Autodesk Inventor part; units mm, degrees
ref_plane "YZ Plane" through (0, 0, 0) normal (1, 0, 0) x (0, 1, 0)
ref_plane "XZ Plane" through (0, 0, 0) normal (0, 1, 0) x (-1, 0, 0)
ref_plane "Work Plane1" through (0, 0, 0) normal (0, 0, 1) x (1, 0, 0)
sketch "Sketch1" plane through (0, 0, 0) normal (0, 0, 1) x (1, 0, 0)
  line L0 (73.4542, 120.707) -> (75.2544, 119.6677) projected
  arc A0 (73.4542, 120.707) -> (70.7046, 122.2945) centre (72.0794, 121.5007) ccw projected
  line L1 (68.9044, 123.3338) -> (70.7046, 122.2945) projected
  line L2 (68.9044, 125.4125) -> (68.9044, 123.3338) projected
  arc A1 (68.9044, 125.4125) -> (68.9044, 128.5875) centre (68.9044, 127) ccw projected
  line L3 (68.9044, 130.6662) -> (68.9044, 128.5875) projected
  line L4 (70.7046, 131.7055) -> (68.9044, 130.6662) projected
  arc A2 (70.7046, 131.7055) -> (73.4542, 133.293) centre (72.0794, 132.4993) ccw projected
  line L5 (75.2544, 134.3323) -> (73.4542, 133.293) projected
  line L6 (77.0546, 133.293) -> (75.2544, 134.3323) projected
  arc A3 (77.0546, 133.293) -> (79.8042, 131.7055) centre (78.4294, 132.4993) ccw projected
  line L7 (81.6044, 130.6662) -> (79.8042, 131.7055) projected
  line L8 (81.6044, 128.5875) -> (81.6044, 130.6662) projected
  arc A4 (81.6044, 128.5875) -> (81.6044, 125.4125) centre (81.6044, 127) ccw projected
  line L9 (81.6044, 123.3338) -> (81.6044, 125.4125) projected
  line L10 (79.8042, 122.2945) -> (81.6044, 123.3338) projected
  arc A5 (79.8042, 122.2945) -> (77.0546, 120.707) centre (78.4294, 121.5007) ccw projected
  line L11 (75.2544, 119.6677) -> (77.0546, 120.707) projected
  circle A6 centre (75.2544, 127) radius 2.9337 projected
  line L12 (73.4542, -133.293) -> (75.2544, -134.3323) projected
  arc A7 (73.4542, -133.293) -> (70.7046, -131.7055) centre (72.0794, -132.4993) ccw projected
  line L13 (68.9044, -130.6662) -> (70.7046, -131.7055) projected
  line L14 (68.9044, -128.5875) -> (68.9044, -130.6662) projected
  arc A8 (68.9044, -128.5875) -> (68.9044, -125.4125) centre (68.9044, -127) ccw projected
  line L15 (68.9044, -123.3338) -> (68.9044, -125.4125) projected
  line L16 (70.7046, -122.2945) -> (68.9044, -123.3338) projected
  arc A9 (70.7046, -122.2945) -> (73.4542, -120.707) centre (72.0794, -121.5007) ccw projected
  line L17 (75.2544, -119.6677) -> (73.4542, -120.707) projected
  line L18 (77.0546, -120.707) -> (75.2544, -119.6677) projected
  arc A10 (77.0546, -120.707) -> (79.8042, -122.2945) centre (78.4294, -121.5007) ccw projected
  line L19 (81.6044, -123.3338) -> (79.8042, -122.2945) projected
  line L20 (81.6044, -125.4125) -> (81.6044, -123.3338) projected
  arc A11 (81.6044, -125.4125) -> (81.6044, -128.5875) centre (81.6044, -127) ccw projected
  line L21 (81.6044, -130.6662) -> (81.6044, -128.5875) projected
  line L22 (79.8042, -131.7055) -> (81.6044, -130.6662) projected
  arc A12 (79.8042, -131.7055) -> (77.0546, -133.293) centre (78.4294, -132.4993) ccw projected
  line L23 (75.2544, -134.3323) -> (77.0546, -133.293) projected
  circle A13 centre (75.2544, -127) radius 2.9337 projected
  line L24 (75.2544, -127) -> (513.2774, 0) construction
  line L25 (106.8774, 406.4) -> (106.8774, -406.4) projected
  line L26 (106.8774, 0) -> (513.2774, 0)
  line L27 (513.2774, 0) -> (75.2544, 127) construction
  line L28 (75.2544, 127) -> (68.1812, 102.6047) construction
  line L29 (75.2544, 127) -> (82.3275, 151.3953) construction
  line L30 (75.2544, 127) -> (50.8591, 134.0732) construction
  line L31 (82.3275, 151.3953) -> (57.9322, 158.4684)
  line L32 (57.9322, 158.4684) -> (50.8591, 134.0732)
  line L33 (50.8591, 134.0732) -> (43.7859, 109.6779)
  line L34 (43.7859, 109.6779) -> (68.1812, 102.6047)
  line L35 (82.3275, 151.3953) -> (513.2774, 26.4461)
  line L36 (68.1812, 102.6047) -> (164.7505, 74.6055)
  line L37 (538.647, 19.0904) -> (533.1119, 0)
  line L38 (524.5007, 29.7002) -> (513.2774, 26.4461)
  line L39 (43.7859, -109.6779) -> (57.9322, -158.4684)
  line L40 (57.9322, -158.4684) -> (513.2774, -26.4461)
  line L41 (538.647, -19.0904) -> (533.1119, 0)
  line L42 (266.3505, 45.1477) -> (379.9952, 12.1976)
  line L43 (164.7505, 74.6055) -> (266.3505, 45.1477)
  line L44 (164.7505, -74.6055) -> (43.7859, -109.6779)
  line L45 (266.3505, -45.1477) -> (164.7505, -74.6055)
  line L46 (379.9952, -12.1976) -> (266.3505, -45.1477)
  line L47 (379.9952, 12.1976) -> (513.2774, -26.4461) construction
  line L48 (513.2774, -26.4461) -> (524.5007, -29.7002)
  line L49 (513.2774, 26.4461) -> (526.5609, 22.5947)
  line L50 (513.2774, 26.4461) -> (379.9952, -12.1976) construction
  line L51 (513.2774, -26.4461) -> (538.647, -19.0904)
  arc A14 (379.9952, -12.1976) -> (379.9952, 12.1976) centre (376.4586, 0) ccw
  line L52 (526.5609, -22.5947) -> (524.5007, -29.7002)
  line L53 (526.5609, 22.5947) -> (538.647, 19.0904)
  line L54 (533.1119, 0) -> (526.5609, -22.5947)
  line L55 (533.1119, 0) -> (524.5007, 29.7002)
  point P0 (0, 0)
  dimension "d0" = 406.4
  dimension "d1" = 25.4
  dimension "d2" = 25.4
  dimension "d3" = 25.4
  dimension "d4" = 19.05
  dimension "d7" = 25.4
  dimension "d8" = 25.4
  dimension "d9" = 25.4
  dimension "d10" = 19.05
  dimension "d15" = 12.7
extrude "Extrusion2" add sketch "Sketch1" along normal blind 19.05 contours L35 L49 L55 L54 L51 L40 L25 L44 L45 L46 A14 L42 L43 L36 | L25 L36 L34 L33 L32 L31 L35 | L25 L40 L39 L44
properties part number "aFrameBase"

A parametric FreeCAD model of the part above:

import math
import FreeCAD as App
import Part
import Sketcher
Q = App.Units.Quantity

doc = App.newDocument("Part")
body = doc.addObject("PartDesign::Body", "Body")

# Sketch on XY plane
sketch1 = body.newObject("Sketcher::SketchObject", "Sketch")
sketch1.AttachmentSupport = (doc.getObject("XY_Plane"), [""])
sketch1.MapMode = "FlatFace"
sketch1.addGeometry([
    Part.LineSegment(App.Vector(513.2774, 26.4461, 0), App.Vector(82.3275, 151.3953, 0)),  # 0
    Part.LineSegment(App.Vector(82.3275, 151.3953, 0), App.Vector(57.9322, 158.4684, 0)),  # 1
    Part.LineSegment(App.Vector(57.9322, 158.4684, 0), App.Vector(50.8591, 134.0732, 0)),  # 2
    Part.LineSegment(App.Vector(50.8591, 134.0732, 0), App.Vector(43.7859, 109.6779, 0)),  # 3
    Part.LineSegment(App.Vector(43.7859, 109.6779, 0), App.Vector(68.1812, 102.6047, 0)),  # 4
    Part.LineSegment(App.Vector(68.1812, 102.6047, 0), App.Vector(164.7505, 74.6055, 0)),  # 5
    Part.LineSegment(App.Vector(164.7505, 74.6055, 0), App.Vector(266.3505, 45.1477, 0)),  # 6
    Part.LineSegment(App.Vector(266.3505, 45.1477, 0), App.Vector(379.9952, 12.1976, 0)),  # 7
    Part.ArcOfCircle(Part.Circle(App.Vector(376.4586, 0, 0), App.Vector(0, 0, 1), 12.69996), math.radians(-73.830891), math.radians(73.830891)),  # 8
    Part.LineSegment(App.Vector(379.9952, -12.1976, 0), App.Vector(266.3505, -45.1477, 0)),  # 9
    Part.LineSegment(App.Vector(266.3505, -45.1477, 0), App.Vector(164.7505, -74.6055, 0)),  # 10
    Part.LineSegment(App.Vector(164.7505, -74.6055, 0), App.Vector(43.7859, -109.6779, 0)),  # 11
    Part.LineSegment(App.Vector(43.7859, -109.6779, 0), App.Vector(57.9322, -158.4684, 0)),  # 12
    Part.LineSegment(App.Vector(57.9322, -158.4684, 0), App.Vector(513.2774, -26.4461, 0)),  # 13
    Part.LineSegment(App.Vector(513.2774, -26.4461, 0), App.Vector(526.56089, -22.594665, 0)),  # 14
    Part.LineSegment(App.Vector(526.5609, -22.5947, 0), App.Vector(533.1119, 0, 0)),  # 15
    Part.LineSegment(App.Vector(533.1119, 0, 0), App.Vector(526.560854, 22.594687, 0)),  # 16
    Part.LineSegment(App.Vector(526.5609, 22.5947, 0), App.Vector(513.2774, 26.4461, 0)),  # 17
    Part.ArcOfCircle(Part.Circle(App.Vector(72.0794, -132.4993, 0), App.Vector(0, 0, 1), 1.587462), math.radians(-29.998714), math.radians(149.998161)),  # 18
    Part.LineSegment(App.Vector(70.7046, -131.7055, 0), App.Vector(68.9044, -130.6662, 0)),  # 19
    Part.LineSegment(App.Vector(68.9044, -130.6662, 0), App.Vector(68.9044, -128.5875, 0)),  # 20
    Part.ArcOfCircle(Part.Circle(App.Vector(68.9044, -127, 0), App.Vector(0, 0, 1), 1.5875), math.radians(-90), math.radians(90)),  # 21
    Part.LineSegment(App.Vector(68.9044, -125.4125, 0), App.Vector(68.9044, -123.3338, 0)),  # 22
    Part.LineSegment(App.Vector(68.9044, -123.3338, 0), App.Vector(70.7046, -122.2945, 0)),  # 23
    Part.ArcOfCircle(Part.Circle(App.Vector(72.0794, -121.5007, 0), App.Vector(0, 0, 1), 1.587512), math.radians(-149.998161), math.radians(29.998714)),  # 24
    Part.LineSegment(App.Vector(73.4542, -120.707, 0), App.Vector(75.2544, -119.6677, 0)),  # 25
    Part.LineSegment(App.Vector(75.2544, -119.6677, 0), App.Vector(77.0546, -120.707, 0)),  # 26
    Part.ArcOfCircle(Part.Circle(App.Vector(78.4294, -121.5007, 0), App.Vector(0, 0, 1), 1.587462), math.radians(150.001286), math.radians(329.998161)),  # 27
    Part.LineSegment(App.Vector(79.8042, -122.2945, 0), App.Vector(81.6044, -123.3338, 0)),  # 28
    Part.LineSegment(App.Vector(81.6044, -123.3338, 0), App.Vector(81.6044, -125.4125, 0)),  # 29
    Part.ArcOfCircle(Part.Circle(App.Vector(81.6044, -127, 0), App.Vector(0, 0, 1), 1.5875), math.radians(90), math.radians(270)),  # 30
    Part.LineSegment(App.Vector(81.6044, -128.5875, 0), App.Vector(81.6044, -130.6662, 0)),  # 31
    Part.LineSegment(App.Vector(81.6044, -130.6662, 0), App.Vector(79.8042, -131.7055, 0)),  # 32
    Part.ArcOfCircle(Part.Circle(App.Vector(78.4294, -132.4993, 0), App.Vector(0, 0, 1), 1.587512), math.radians(30.001839), math.radians(209.998714)),  # 33
    Part.LineSegment(App.Vector(77.0546, -133.293, 0), App.Vector(75.2544, -134.3323, 0)),  # 34
    Part.LineSegment(App.Vector(75.2544, -134.3323, 0), App.Vector(73.4542, -133.293, 0)),  # 35
    Part.ArcOfCircle(Part.Circle(App.Vector(72.0794, 121.5007, 0), App.Vector(0, 0, 1), 1.587462), math.radians(-29.998714), math.radians(149.998161)),  # 36
    Part.LineSegment(App.Vector(70.7046, 122.2945, 0), App.Vector(68.9044, 123.3338, 0)),  # 37
    Part.LineSegment(App.Vector(68.9044, 123.3338, 0), App.Vector(68.9044, 125.4125, 0)),  # 38
    Part.ArcOfCircle(Part.Circle(App.Vector(68.9044, 127, 0), App.Vector(0, 0, 1), 1.5875), math.radians(-90), math.radians(90)),  # 39
    Part.LineSegment(App.Vector(68.9044, 128.5875, 0), App.Vector(68.9044, 130.6662, 0)),  # 40
    Part.LineSegment(App.Vector(68.9044, 130.6662, 0), App.Vector(70.7046, 131.7055, 0)),  # 41
    Part.ArcOfCircle(Part.Circle(App.Vector(72.0794, 132.4993, 0), App.Vector(0, 0, 1), 1.587512), math.radians(-149.998161), math.radians(29.998714)),  # 42
    Part.LineSegment(App.Vector(73.4542, 133.293, 0), App.Vector(75.2544, 134.3323, 0)),  # 43
    Part.LineSegment(App.Vector(75.2544, 134.3323, 0), App.Vector(77.0546, 133.293, 0)),  # 44
    Part.ArcOfCircle(Part.Circle(App.Vector(78.4294, 132.4993, 0), App.Vector(0, 0, 1), 1.587462), math.radians(150.001286), math.radians(329.998161)),  # 45
    Part.LineSegment(App.Vector(79.8042, 131.7055, 0), App.Vector(81.6044, 130.6662, 0)),  # 46
    Part.LineSegment(App.Vector(81.6044, 130.6662, 0), App.Vector(81.6044, 128.5875, 0)),  # 47
    Part.ArcOfCircle(Part.Circle(App.Vector(81.6044, 127, 0), App.Vector(0, 0, 1), 1.5875), math.radians(90), math.radians(270)),  # 48
    Part.LineSegment(App.Vector(81.6044, 125.4125, 0), App.Vector(81.6044, 123.3338, 0)),  # 49
    Part.LineSegment(App.Vector(81.6044, 123.3338, 0), App.Vector(79.8042, 122.2945, 0)),  # 50
    Part.ArcOfCircle(Part.Circle(App.Vector(78.4294, 121.5007, 0), App.Vector(0, 0, 1), 1.587512), math.radians(30.001839), math.radians(209.998714)),  # 51
    Part.LineSegment(App.Vector(77.0546, 120.707, 0), App.Vector(75.2544, 119.6677, 0)),  # 52
    Part.LineSegment(App.Vector(75.2544, 119.6677, 0), App.Vector(73.4542, 120.707, 0)),  # 53
], False)
sketch1.addConstraint([
    Sketcher.Constraint("Coincident", 0, 2, 1, 1),
    Sketcher.Constraint("Coincident", 1, 2, 2, 1),
    Sketcher.Constraint("Coincident", 2, 2, 3, 1),
    Sketcher.Constraint("Coincident", 3, 2, 4, 1),
    Sketcher.Constraint("Coincident", 4, 2, 5, 1),
    Sketcher.Constraint("Coincident", 5, 2, 6, 1),
    Sketcher.Constraint("Coincident", 6, 2, 7, 1),
    Sketcher.Constraint("Tangent", 7, 2, 8, 2),
    Sketcher.Constraint("Tangent", 8, 1, 9, 1),
    Sketcher.Constraint("Coincident", 9, 2, 10, 1),
    Sketcher.Constraint("Coincident", 10, 2, 11, 1),
    Sketcher.Constraint("Coincident", 11, 2, 12, 1),
    Sketcher.Constraint("Coincident", 12, 2, 13, 1),
    Sketcher.Constraint("Coincident", 13, 2, 14, 1),
    Sketcher.Constraint("Coincident", 14, 2, 15, 1),
    Sketcher.Constraint("Coincident", 15, 2, 16, 1),
    Sketcher.Constraint("Coincident", 16, 2, 17, 1),
    Sketcher.Constraint("Coincident", 17, 2, 0, 1),
    Sketcher.Constraint("Coincident", 18, 2, 19, 1),
    Sketcher.Constraint("Coincident", 19, 2, 20, 1),
    Sketcher.Constraint("Coincident", 20, 2, 21, 1),
    Sketcher.Constraint("Coincident", 21, 2, 22, 1),
    Sketcher.Constraint("Coincident", 22, 2, 23, 1),
    Sketcher.Constraint("Coincident", 23, 2, 24, 1),
    Sketcher.Constraint("Coincident", 24, 2, 25, 1),
    Sketcher.Constraint("Coincident", 25, 2, 26, 1),
    Sketcher.Constraint("Coincident", 26, 2, 27, 1),
    Sketcher.Constraint("Coincident", 27, 2, 28, 1),
    Sketcher.Constraint("Coincident", 28, 2, 29, 1),
    Sketcher.Constraint("Coincident", 29, 2, 30, 1),
    Sketcher.Constraint("Coincident", 30, 2, 31, 1),
    Sketcher.Constraint("Coincident", 31, 2, 32, 1),
    Sketcher.Constraint("Coincident", 32, 2, 33, 1),
    Sketcher.Constraint("Coincident", 33, 2, 34, 1),
    Sketcher.Constraint("Coincident", 34, 2, 35, 1),
    Sketcher.Constraint("Coincident", 35, 2, 18, 1),
    Sketcher.Constraint("Coincident", 36, 2, 37, 1),
    Sketcher.Constraint("Coincident", 37, 2, 38, 1),
    Sketcher.Constraint("Coincident", 38, 2, 39, 1),
    Sketcher.Constraint("Coincident", 39, 2, 40, 1),
    Sketcher.Constraint("Coincident", 40, 2, 41, 1),
    Sketcher.Constraint("Coincident", 41, 2, 42, 1),
    Sketcher.Constraint("Coincident", 42, 2, 43, 1),
    Sketcher.Constraint("Coincident", 43, 2, 44, 1),
    Sketcher.Constraint("Coincident", 44, 2, 45, 1),
    Sketcher.Constraint("Coincident", 45, 2, 46, 1),
    Sketcher.Constraint("Coincident", 46, 2, 47, 1),
    Sketcher.Constraint("Coincident", 47, 2, 48, 1),
    Sketcher.Constraint("Coincident", 48, 2, 49, 1),
    Sketcher.Constraint("Coincident", 49, 2, 50, 1),
    Sketcher.Constraint("Coincident", 50, 2, 51, 1),
    Sketcher.Constraint("Coincident", 51, 2, 52, 1),
    Sketcher.Constraint("Coincident", 52, 2, 53, 1),
    Sketcher.Constraint("Coincident", 53, 2, 36, 1),
    Sketcher.Constraint("Vertical", 20),
    Sketcher.Constraint("Vertical", 22),
    Sketcher.Constraint("Vertical", 29),
    Sketcher.Constraint("Vertical", 31),
    Sketcher.Constraint("Vertical", 38),
    Sketcher.Constraint("Vertical", 40),
    Sketcher.Constraint("Vertical", 47),
    Sketcher.Constraint("Vertical", 49),
    Sketcher.Constraint("Equal", 18, 21),
    Sketcher.Constraint("Equal", 21, 24),
    Sketcher.Constraint("Equal", 24, 27),
    Sketcher.Constraint("Equal", 27, 30),
    Sketcher.Constraint("Equal", 30, 33),
    Sketcher.Constraint("Equal", 33, 36),
    Sketcher.Constraint("Equal", 36, 39),
    Sketcher.Constraint("Equal", 39, 42),
    Sketcher.Constraint("Equal", 42, 45),
    Sketcher.Constraint("Equal", 45, 48),
    Sketcher.Constraint("Equal", 48, 51),
    Sketcher.Constraint("Symmetric", 24, 3, 36, 3, -1),
    Sketcher.Constraint("Symmetric", 21, 3, 39, 3, -1),
    Sketcher.Constraint("Symmetric", 18, 3, 42, 3, -1),
    Sketcher.Constraint("Symmetric", 33, 3, 45, 3, -1),
    Sketcher.Constraint("Symmetric", 30, 3, 48, 3, -1),
    Sketcher.Constraint("Symmetric", 27, 3, 51, 3, -1),
    Sketcher.Constraint("Symmetric", 7, 2, 8, 1, -1),
    Sketcher.Constraint("Symmetric", 5, 2, 10, 2, -1),
    Sketcher.Constraint("Symmetric", 3, 2, 11, 2, -1),
    Sketcher.Constraint("Symmetric", 1, 2, 12, 2, -1),
    Sketcher.Constraint("Symmetric", 14, 2, 16, 2, -1),
    Sketcher.Constraint("Symmetric", 13, 2, 17, 2, -1),
    Sketcher.Constraint("Symmetric", 22, 2, 37, 2, -1),
    Sketcher.Constraint("Symmetric", 19, 2, 40, 2, -1),
    Sketcher.Constraint("Symmetric", 34, 2, 43, 2, -1),
    Sketcher.Constraint("Symmetric", 31, 2, 46, 2, -1),
    Sketcher.Constraint("Symmetric", 28, 2, 49, 2, -1),
    Sketcher.Constraint("Symmetric", 25, 2, 52, 2, -1),
    Sketcher.Constraint("PointOnObject", 15, 2, -1),
    Sketcher.Constraint("Parallel", 0, 1),
    Sketcher.Constraint("Perpendicular", 1, 2),
    Sketcher.Constraint("Parallel", 2, 3),
    Sketcher.Constraint("Perpendicular", 3, 4),
    Sketcher.Constraint("Parallel", 4, 5),
    Sketcher.Constraint("Parallel", 5, 6),
    Sketcher.Constraint("Parallel", 6, 7),
    Sketcher.Constraint("Parallel", 13, 14),
    Sketcher.Constraint("Perpendicular", 7, 15),
    Sketcher.Constraint("Parallel", 23, 25),
    Sketcher.Constraint("Parallel", 19, 26),
    Sketcher.Constraint("Parallel", 26, 28),
    Sketcher.Constraint("Parallel", 25, 32),
    Sketcher.Constraint("Parallel", 32, 34),
    Sketcher.Constraint("Parallel", 28, 35),
    Sketcher.Constraint("Parallel", 35, 37),
    Sketcher.Constraint("Parallel", 34, 41),
    Sketcher.Constraint("Parallel", 41, 43),
    Sketcher.Constraint("Parallel", 37, 44),
    Sketcher.Constraint("Parallel", 44, 46),
    Sketcher.Constraint("Parallel", 43, 50),
    Sketcher.Constraint("Parallel", 50, 52),
    Sketcher.Constraint("Parallel", 46, 53),
    Sketcher.Constraint("Horizontal", 24, 3, 27, 3),
    Sketcher.Constraint("Horizontal", 21, 3, 30, 3),
    Sketcher.Constraint("Horizontal", 18, 3, 33, 3),
    Sketcher.Constraint("Horizontal", 24, 2, 26, 2),
    Sketcher.Constraint("Horizontal", 23, 2, 27, 2),
    Sketcher.Constraint("Horizontal", 22, 2, 28, 2),
    Sketcher.Constraint("Horizontal", 19, 2, 31, 2),
    Sketcher.Constraint("Horizontal", 18, 2, 32, 2),
    Sketcher.Constraint("Horizontal", 33, 2, 35, 2),
    Sketcher.Constraint("Horizontal", 42, 2, 44, 2),
    Sketcher.Constraint("Vertical", 18, 3, 24, 3),
    Sketcher.Constraint("Vertical", 27, 3, 33, 3),
    Sketcher.Constraint("Vertical", 6, 2, 9, 2),
    Sketcher.Constraint("Vertical", 39, 3, 19, 2),
    Sketcher.Constraint("Vertical", 20, 2, 21, 2),
    Sketcher.Constraint("Vertical", 18, 2, 23, 2),
    Sketcher.Constraint("Vertical", 48, 3, 28, 2),
    Sketcher.Constraint("Vertical", 26, 2, 33, 2),
    Sketcher.Constraint("Equal", 20, 22),
    Sketcher.Constraint("Equal", 1, 2),
    Sketcher.Constraint("Equal", 2, 3),
    Sketcher.Constraint("Equal", 3, 4),
    Sketcher.Constraint("Equal", 23, 25),
    Sketcher.Constraint("Radius", 8, Q("0.5 in")),
    Sketcher.Constraint("Distance", 1, Q("1 in")),
    Sketcher.Constraint("DistanceY", 21, 3, -1, 1, Q("5 in")),
    Sketcher.Constraint("Angle", 19, Q("150.001 deg")),
    Sketcher.Constraint("Radius", 18, Q("0.0625 in")),
    Sketcher.Constraint("Angle", 0, Q("163.831 deg")),
    Sketcher.Constraint("Distance", 14, Q("0.5445 in")),
    Sketcher.Constraint("Distance", 15, Q("0.9262 in")),
    Sketcher.Constraint("DistanceY", 20, 1, 20, 2, 2.0787),
    Sketcher.Constraint("DistanceX", -1, 1, 8, 3, Q("14.8212 in")),
    Sketcher.Constraint("DistanceY", 18, 3, -1, 1, Q("5.2165 in")),
    Sketcher.Constraint("DistanceX", -1, 1, 1, 2, Q("2.2808 in")),
    Sketcher.Constraint("DistanceX", -1, 1, 24, 2, Q("2.8919 in")),
    Sketcher.Constraint("DistanceX", -1, 1, 27, 2, Q("3.1419 in")),
    Sketcher.Constraint("Distance", 5, 100.5464),
    Sketcher.Constraint("Distance", 6, 105.7843),
    Sketcher.Constraint("Distance", 19, 2.0787),
])
pad1 = body.newObject("PartDesign::Pad", "Pad")
pad1.Profile = sketch1
pad1.Length = Q("0.75 in")

doc.recompute()
